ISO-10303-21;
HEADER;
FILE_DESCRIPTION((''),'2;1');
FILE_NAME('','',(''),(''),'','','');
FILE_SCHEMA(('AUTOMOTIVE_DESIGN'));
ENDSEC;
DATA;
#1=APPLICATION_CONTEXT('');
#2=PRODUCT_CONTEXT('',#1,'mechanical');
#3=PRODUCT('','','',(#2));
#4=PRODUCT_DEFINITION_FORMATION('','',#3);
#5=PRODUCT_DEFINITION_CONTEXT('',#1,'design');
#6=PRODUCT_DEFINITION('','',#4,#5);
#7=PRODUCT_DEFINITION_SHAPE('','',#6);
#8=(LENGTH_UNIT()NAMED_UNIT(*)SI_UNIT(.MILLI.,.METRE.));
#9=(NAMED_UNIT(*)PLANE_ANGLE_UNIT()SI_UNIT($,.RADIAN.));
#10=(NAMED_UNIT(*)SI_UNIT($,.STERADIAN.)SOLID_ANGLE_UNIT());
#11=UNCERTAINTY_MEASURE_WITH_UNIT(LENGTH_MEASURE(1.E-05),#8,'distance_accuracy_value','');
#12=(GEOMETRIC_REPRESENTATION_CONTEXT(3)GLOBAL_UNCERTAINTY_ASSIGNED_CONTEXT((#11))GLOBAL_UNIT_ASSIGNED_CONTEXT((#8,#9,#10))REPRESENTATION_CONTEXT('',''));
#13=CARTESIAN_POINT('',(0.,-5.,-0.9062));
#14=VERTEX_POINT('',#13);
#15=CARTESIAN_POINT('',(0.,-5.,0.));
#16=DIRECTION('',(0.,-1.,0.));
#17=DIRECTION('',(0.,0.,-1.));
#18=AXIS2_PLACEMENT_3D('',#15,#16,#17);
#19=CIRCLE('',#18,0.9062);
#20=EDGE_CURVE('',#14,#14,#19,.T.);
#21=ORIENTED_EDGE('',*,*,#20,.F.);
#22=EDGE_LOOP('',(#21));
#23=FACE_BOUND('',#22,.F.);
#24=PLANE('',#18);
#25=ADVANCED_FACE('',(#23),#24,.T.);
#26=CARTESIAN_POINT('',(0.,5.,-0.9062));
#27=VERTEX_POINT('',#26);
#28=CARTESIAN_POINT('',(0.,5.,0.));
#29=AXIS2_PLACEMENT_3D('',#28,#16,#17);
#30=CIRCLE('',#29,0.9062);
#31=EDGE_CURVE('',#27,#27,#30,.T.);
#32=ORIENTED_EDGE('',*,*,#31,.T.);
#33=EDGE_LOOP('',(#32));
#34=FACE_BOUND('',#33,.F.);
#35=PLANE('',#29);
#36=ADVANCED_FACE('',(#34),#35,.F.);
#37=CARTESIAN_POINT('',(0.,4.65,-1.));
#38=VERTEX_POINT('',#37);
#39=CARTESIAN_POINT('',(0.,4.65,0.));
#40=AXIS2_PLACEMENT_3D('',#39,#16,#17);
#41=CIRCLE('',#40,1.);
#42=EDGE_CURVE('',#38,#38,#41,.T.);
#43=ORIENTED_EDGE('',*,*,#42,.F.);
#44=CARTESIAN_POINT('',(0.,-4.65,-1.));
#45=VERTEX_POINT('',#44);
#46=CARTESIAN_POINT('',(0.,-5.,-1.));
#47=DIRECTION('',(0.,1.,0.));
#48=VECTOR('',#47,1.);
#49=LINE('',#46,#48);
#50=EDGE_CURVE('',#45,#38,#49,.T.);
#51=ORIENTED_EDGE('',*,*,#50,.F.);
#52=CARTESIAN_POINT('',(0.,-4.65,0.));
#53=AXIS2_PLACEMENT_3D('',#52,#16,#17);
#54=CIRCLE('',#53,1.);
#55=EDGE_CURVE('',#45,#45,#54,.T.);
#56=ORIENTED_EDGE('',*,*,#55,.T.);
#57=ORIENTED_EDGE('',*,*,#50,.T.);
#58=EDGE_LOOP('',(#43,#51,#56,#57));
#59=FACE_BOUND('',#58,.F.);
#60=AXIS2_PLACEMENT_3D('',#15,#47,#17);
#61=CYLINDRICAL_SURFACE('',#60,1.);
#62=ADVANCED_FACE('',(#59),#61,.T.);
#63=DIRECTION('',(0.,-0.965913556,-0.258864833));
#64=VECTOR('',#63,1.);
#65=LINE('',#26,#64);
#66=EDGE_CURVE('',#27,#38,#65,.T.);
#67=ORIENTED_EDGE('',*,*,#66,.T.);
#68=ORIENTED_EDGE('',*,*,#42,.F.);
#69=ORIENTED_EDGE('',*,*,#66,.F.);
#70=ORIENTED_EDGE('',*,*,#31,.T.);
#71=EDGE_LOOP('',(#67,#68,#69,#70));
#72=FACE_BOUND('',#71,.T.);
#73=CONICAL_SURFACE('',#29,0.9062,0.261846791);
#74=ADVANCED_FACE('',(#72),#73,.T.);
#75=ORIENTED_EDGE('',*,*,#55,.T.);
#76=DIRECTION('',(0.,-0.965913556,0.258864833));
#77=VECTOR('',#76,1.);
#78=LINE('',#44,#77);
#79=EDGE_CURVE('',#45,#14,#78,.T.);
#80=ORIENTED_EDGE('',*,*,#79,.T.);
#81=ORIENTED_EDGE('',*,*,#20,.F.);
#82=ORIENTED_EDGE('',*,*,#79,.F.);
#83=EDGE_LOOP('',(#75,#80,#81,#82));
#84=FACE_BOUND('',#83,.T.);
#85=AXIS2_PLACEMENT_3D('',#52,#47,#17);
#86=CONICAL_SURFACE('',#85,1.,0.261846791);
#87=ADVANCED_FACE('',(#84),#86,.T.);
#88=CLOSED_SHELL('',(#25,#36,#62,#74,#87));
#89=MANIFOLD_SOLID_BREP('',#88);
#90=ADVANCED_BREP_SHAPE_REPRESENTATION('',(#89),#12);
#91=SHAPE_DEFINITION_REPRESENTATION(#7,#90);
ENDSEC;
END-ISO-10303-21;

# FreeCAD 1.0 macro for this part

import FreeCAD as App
import Part
import Sketcher


def add_polygon(sketch, points):
    """Adds a closed chain of lines whose ends are joined by coincident constraints."""
    first, n = sketch.GeometryCount, len(points)
    for a, b in zip(points, points[1:] + points[:1]):
        sketch.addGeometry(Part.LineSegment(App.Vector(*a, 0), App.Vector(*b, 0)), False)
    for i in range(n):
        sketch.addConstraint(Sketcher.Constraint("Coincident", first + i, 2, first + (i + 1) % n, 1))

doc = App.newDocument("Part")
body = doc.addObject("PartDesign::Body", "Body")

sketch1 = body.newObject("Sketcher::SketchObject", "Sketch")
sketch1.AttachmentSupport = (doc.getObject("YZ_Plane"), [""])
sketch1.MapMode = "FlatFace"
add_polygon(sketch1, [(5, -0.9062), (5, 0), (-5, 0), (-5, -0.9062), (-4.65, -1), (4.65, -1)])
sketch1.addConstraint([
    Sketcher.Constraint("Vertical", 0),
    Sketcher.Constraint("Horizontal", 1),
    Sketcher.Constraint("Vertical", 2),
    Sketcher.Constraint("Horizontal", 4),
    Sketcher.Constraint("Symmetric", 0, 2, 1, 2, -1, 1),
    Sketcher.Constraint("Horizontal", 2, 2, 5, 2),
    Sketcher.Constraint("Equal", 3, 5),
    Sketcher.Constraint("DistanceX", 1, 2, 1, 1, 10.0),
    Sketcher.Constraint("DistanceX", 2, 2, 3, 2, 0.35),
    Sketcher.Constraint("DistanceY", 3, 2, -1, 1, 1.0),
    Sketcher.Constraint("DistanceY", 0, 1, 0, 2, 0.9062),
])
revolution = body.newObject("PartDesign::Revolution", "Revolution")
revolution.Profile = sketch1
revolution.ReferenceAxis = (sketch1, ["H_Axis"])
revolution.Angle = 360

doc.recompute()
